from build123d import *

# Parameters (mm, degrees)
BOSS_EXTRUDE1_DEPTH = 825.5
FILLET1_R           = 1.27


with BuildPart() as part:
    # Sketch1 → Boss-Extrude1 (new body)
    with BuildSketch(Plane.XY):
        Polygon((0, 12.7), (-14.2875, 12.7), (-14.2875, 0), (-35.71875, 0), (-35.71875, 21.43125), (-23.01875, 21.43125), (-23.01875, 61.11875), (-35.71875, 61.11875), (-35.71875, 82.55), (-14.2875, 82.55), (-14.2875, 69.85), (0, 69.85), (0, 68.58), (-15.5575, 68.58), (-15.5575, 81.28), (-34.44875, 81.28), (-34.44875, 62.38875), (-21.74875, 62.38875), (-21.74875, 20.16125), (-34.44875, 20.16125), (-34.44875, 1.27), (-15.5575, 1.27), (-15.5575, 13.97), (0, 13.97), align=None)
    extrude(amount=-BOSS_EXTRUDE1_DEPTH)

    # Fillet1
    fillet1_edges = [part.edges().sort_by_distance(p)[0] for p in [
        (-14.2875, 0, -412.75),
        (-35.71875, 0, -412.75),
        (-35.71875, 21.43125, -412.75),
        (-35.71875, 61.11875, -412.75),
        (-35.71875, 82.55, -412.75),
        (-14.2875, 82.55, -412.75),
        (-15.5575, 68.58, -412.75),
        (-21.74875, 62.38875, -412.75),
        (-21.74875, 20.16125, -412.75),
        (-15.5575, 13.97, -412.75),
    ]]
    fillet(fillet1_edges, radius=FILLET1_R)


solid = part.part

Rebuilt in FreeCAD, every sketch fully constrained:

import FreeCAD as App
import Part
import Sketcher

V = App.Vector
Q = App.Units.Quantity


def edges_at(feature, points):
    """Names of the edges that pass closest to the given points."""
    edges = feature.Shape.Edges
    near = lambda p: min(range(len(edges)), key=lambda i: edges[i].distToShape(Part.Vertex(*p))[0])
    return sorted({f"Edge{near(p) + 1}" for p in points})


def add_polygon(sketch, points):
    """Adds a closed chain of lines whose ends are joined by coincident constraints."""
    first, n = sketch.GeometryCount, len(points)
    for a, b in zip(points, points[1:] + points[:1]):
        sketch.addGeometry(Part.LineSegment(App.Vector(*a, 0), App.Vector(*b, 0)), False)
    for i in range(n):
        sketch.addConstraint(Sketcher.Constraint("Coincident", first + i, 2, first + (i + 1) % n, 1))

doc = App.newDocument("Part")
body = doc.addObject("PartDesign::Body", "Body")

# Sketch on XY plane
sketch1 = body.newObject("Sketcher::SketchObject", "Sketch")
sketch1.AttachmentSupport = (doc.getObject("XY_Plane"), [""])
sketch1.MapMode = "FlatFace"
add_polygon(sketch1, [(-14.3, 12.7), (0, 12.7), (0, 14), (-15.6, 14), (-15.6, 1.3), (-34.4, 1.3), (-34.4, 20.2), (-21.7, 20.2), (-21.7, 62.4), (-34.4, 62.4), (-34.4, 81.3), (-15.6, 81.3), (-15.6, 68.6), (0, 68.6), (0, 69.8), (-14.3, 69.8), (-14.3, 82.5), (-35.7, 82.5), (-35.7, 61.1), (-23, 61.1), (-23, 21.4), (-35.7, 21.4), (-35.7, 0), (-14.3, 0)])  # lines 0-23
sketch1.addConstraint([
    Sketcher.Constraint("Horizontal", 0),
    Sketcher.Constraint("Vertical", 1),
    Sketcher.Constraint("Horizontal", 2),
    Sketcher.Constraint("Vertical", 3),
    Sketcher.Constraint("Horizontal", 4),
    Sketcher.Constraint("Vertical", 5),
    Sketcher.Constraint("Horizontal", 6),
    Sketcher.Constraint("Vertical", 7),
    Sketcher.Constraint("Horizontal", 8),
    Sketcher.Constraint("Vertical", 9),
    Sketcher.Constraint("Horizontal", 10),
    Sketcher.Constraint("Vertical", 11),
    Sketcher.Constraint("Horizontal", 12),
    Sketcher.Constraint("Vertical", 13),
    Sketcher.Constraint("Horizontal", 14),
    Sketcher.Constraint("Vertical", 15),
    Sketcher.Constraint("Horizontal", 16),
    Sketcher.Constraint("Vertical", 17),
    Sketcher.Constraint("Horizontal", 18),
    Sketcher.Constraint("Vertical", 19),
    Sketcher.Constraint("Horizontal", 20),
    Sketcher.Constraint("Vertical", 21),
    Sketcher.Constraint("Horizontal", 22),
    Sketcher.Constraint("Vertical", 23),
    Sketcher.Constraint("PointOnObject", 0, 2, -2),
    Sketcher.Constraint("PointOnObject", 12, 2, -2),
    Sketcher.Constraint("PointOnObject", 21, 2, -1),
    Sketcher.Constraint("Vertical", 5, 2, 8, 2),
    Sketcher.Constraint("Vertical", 3, 2, 10, 2),
    Sketcher.Constraint("Vertical", 17, 2, 20, 2),
    Sketcher.Constraint("Vertical", 15, 2, 22, 2),
    Sketcher.Constraint("Equal", 8, 18),
    Sketcher.Constraint("Equal", 20, 3),
    Sketcher.Constraint("Equal", 10, 5),
    Sketcher.Constraint("Equal", 5, 9),
    Sketcher.Constraint("Equal", 3, 11),
    Sketcher.Constraint("Equal", 1, 13),
    Sketcher.Constraint("Equal", 11, 15),
    Sketcher.Constraint("Equal", 22, 17),
    Sketcher.Constraint("Equal", 17, 21),
    Sketcher.Constraint("Equal", 15, 23),
    Sketcher.Constraint("DistanceX", 6, 1, 6, 2, Q("0.5 in")),
    Sketcher.Constraint("DistanceY", 1, 1, 1, 2, Q("0.05 in")),
    Sketcher.Constraint("DistanceY", -1, 1, 9, 2, Q("3.2 in")),
    Sketcher.Constraint("DistanceX", 0, 1, 0, 2, Q("0.5625 in")),
    Sketcher.Constraint("DistanceX", 16, 2, 16, 1, Q("0.84375 in")),
    Sketcher.Constraint("DistanceX", 11, 2, 14, 2, Q("0.05 in")),
    Sketcher.Constraint("DistanceX", 16, 2, 9, 2, Q("0.05 in")),
])
pad1 = body.newObject("PartDesign::Pad", "Pad")
pad1.Profile = sketch1
pad1.Length = Q("32.5 in")
pad1.Reversed = True
doc.recompute()

fillet = body.newObject("PartDesign::Fillet", "Fillet")
fillet.Base = (pad1, edges_at(pad1, [
    (-14.287, 0, -412.75),
    (-35.719, 0, -412.75),
    (-35.719, 21.431, -412.75),
    (-35.719, 61.119, -412.75),
    (-35.719, 82.55, -412.75),
    (-14.287, 82.55, -412.75),
    (-15.557, 68.58, -412.75),
    (-21.749, 62.389, -412.75),
    (-21.749, 20.161, -412.75),
    (-15.557, 13.97, -412.75),
]))
fillet.Radius = Q("0.05 in")

doc.recompute()
